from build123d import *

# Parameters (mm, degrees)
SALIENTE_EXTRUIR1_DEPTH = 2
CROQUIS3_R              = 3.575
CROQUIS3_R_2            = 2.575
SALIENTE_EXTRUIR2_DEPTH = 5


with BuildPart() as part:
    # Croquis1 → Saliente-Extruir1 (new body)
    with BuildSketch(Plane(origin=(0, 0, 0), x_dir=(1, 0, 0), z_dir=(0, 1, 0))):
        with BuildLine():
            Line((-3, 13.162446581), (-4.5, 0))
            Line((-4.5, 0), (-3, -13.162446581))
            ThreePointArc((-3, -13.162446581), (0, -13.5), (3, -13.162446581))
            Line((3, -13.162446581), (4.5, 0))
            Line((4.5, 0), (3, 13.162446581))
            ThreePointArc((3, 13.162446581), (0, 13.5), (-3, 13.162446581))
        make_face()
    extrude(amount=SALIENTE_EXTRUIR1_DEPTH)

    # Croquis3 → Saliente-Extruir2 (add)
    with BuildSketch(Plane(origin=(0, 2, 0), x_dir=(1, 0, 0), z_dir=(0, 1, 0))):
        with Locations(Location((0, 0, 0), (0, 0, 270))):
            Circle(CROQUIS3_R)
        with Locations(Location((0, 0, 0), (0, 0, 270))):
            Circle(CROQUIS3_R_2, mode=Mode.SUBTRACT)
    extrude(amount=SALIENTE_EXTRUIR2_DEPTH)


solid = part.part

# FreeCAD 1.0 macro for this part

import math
import FreeCAD as App
import Part
import Sketcher

doc = App.newDocument("Part")
body = doc.addObject("PartDesign::Body", "Body")

sketch1 = body.newObject("Sketcher::SketchObject", "Sketch")
sketch1.AttachmentSupport = (doc.getObject("XZ_Plane"), [""])
sketch1.MapMode = "FlatFace"
sketch1.addGeometry([
    Part.LineSegment(App.Vector(-3, -13, 0), App.Vector(-4, 0, 0)),
    Part.LineSegment(App.Vector(-4, 0, 0), App.Vector(-3, 13, 0)),
    Part.ArcOfCircle(Part.Circle(App.Vector(0, 0, 0), App.Vector(0, 0, 1), 13), math.radians(77), math.radians(103)),
    Part.LineSegment(App.Vector(3, 13, 0), App.Vector(4, 0, 0)),
    Part.LineSegment(App.Vector(4, 0, 0), App.Vector(3, -13, 0)),
    Part.ArcOfCircle(Part.Circle(App.Vector(0, 0, 0), App.Vector(0, 0, 1), 13), math.radians(-103), math.radians(-77)),
], False)
sketch1.addConstraint([
    Sketcher.Constraint("Coincident", 0, 2, 1, 1),
    Sketcher.Constraint("Coincident", 1, 2, 2, 2),
    Sketcher.Constraint("Coincident", 2, 1, 3, 1),
    Sketcher.Constraint("Coincident", 3, 2, 4, 1),
    Sketcher.Constraint("Coincident", 4, 2, 5, 2),
    Sketcher.Constraint("Coincident", 5, 1, 0, 1),
    Sketcher.Constraint("Coincident", 2, 3, -1, 1),
    Sketcher.Constraint("Coincident", 5, 3, -1, 1),
    Sketcher.Constraint("Equal", 2, 5),
    Sketcher.Constraint("Symmetric", 0, 2, 3, 2, -1, 1),
    Sketcher.Constraint("PointOnObject", 0, 2, -1),
    Sketcher.Constraint("Parallel", 0, 3),
    Sketcher.Constraint("Parallel", 1, 4),
    Sketcher.Constraint("Horizontal", 1, 2, 2, 1),
    Sketcher.Constraint("Radius", 2, 13.5),
    Sketcher.Constraint("DistanceX", 1, 2, -1, 1, 3.0),
    Sketcher.Constraint("DistanceX", 0, 2, 3, 2, 9.0),
])
pad1 = body.newObject("PartDesign::Pad", "Pad")
pad1.Profile = sketch1
pad1.Length = 2
pad1.Reversed = True

sketch2 = body.newObject("Sketcher::SketchObject", "Sketch001")
sketch2.AttachmentSupport = (doc.getObject("XZ_Plane"), [""])
sketch2.MapMode = "FlatFace"
sketch2.AttachmentOffset = App.Placement(App.Vector(0, 0, -2), App.Rotation())
sketch2.addGeometry([
    Part.Circle(App.Vector(0, 0, 0), App.Vector(0, 0, 1), 3.6),
    Part.Circle(App.Vector(0, 0, 0), App.Vector(0, 0, 1), 2.6),
], False)
sketch2.addConstraint([
    Sketcher.Constraint("Coincident", 0, 3, -1, 1),
    Sketcher.Constraint("Coincident", 1, 3, -1, 1),
    Sketcher.Constraint("Diameter", 0, 7.15),
    Sketcher.Constraint("Diameter", 1, 5.15),
])
pad2 = body.newObject("PartDesign::Pad", "Pad001")
pad2.Profile = sketch2
pad2.Length = 5
pad2.Reversed = True

doc.recompute()
